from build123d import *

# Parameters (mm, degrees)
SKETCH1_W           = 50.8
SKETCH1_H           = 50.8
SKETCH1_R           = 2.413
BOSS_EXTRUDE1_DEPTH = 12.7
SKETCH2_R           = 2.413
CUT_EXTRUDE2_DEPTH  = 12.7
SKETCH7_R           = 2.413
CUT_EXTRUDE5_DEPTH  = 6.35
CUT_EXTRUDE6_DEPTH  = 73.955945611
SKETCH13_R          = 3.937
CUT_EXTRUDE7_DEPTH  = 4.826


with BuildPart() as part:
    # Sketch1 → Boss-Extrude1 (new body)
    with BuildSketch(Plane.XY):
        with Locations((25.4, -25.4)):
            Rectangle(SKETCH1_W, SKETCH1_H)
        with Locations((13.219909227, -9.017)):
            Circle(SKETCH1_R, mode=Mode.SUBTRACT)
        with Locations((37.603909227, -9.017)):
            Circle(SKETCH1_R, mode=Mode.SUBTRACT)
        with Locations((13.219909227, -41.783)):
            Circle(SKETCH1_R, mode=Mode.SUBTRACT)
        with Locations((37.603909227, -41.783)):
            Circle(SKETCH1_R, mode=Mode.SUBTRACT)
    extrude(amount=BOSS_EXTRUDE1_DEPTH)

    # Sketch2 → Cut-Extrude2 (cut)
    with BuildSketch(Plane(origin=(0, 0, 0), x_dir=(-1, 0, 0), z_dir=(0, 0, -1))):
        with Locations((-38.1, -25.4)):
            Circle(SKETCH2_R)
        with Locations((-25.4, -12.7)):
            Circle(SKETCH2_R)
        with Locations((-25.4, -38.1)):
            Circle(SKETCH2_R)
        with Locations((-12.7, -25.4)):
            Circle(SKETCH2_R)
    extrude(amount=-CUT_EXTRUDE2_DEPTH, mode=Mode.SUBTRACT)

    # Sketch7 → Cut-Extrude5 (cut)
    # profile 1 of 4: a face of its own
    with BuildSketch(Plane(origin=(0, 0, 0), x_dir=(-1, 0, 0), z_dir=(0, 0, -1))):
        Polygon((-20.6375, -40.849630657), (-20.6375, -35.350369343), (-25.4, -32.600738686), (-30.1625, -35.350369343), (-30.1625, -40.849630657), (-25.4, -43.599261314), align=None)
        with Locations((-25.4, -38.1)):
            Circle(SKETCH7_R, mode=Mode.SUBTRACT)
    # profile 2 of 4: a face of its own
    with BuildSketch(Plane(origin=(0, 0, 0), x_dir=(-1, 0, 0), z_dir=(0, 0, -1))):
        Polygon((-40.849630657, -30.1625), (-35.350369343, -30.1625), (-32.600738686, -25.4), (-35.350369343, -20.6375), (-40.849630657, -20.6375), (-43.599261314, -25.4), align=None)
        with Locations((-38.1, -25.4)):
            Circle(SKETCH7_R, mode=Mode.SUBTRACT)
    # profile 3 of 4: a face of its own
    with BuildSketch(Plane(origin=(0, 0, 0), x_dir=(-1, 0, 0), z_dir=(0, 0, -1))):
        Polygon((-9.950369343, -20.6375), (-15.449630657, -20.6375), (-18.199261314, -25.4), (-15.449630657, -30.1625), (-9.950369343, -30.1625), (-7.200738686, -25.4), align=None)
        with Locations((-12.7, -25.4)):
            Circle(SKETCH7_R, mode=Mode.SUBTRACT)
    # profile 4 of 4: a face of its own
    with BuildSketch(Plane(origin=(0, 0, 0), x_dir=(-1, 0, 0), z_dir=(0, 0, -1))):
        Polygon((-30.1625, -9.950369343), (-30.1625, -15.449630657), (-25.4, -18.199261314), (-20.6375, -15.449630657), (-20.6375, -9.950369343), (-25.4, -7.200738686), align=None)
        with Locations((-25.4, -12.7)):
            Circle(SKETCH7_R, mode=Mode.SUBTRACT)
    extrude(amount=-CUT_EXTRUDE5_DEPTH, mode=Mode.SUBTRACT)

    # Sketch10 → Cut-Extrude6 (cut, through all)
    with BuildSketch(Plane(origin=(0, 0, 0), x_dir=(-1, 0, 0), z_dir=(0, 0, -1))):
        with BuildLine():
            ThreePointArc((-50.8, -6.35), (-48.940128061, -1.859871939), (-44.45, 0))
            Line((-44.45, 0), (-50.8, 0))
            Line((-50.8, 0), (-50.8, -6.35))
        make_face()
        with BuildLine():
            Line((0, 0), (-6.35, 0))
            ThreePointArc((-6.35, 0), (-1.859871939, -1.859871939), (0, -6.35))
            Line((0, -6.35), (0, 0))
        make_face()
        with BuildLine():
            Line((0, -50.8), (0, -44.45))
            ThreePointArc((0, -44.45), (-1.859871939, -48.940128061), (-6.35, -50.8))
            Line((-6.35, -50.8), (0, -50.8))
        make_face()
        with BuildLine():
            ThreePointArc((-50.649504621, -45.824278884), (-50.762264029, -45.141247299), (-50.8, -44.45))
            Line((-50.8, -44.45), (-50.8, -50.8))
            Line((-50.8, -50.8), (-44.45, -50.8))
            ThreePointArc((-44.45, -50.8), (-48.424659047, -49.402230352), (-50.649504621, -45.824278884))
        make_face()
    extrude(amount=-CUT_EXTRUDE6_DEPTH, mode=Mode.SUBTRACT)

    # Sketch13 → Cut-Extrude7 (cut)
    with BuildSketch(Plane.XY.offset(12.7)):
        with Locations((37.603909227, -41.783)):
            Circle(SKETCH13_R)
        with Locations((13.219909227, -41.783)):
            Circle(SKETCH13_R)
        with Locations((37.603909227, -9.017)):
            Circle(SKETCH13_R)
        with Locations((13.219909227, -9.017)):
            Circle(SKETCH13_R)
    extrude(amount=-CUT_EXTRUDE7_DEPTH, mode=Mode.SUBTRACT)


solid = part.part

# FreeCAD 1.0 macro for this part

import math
import FreeCAD as App
import Part
import Sketcher
from FreeCAD import Vector
Q = App.Units.Quantity

doc = App.newDocument("Part")
body = doc.addObject("PartDesign::Body", "Body")

# Sketch on XY plane
sketch1 = body.newObject("Sketcher::SketchObject", "Sketch")
sketch1.AttachmentSupport = (doc.getObject("XY_Plane"), [""])
sketch1.MapMode = "FlatFace"
sketch1.addGeometry([
    Part.LineSegment(Vector(0, 0, 0), Vector(0, -50.8, 0)),  # 0
    Part.LineSegment(Vector(0, -50.8, 0), Vector(50.8, -50.8, 0)),  # 1
    Part.LineSegment(Vector(50.8, -50.8, 0), Vector(50.8, 0, 0)),  # 2
    Part.LineSegment(Vector(50.8, 0, 0), Vector(0, 0, 0)),  # 3
    Part.Circle(Vector(13.2, -41.8, 0), Vector(0, 0, 1), 2.4),  # 4
    Part.Circle(Vector(37.6, -41.8, 0), Vector(0, 0, 1), 2.4),  # 5
    Part.Circle(Vector(13.2, -9, 0), Vector(0, 0, 1), 2.4),  # 6
    Part.Circle(Vector(37.6, -9, 0), Vector(0, 0, 1), 2.4),  # 7
], False)
sketch1.addConstraint([
    Sketcher.Constraint("Coincident", 0, 2, 1, 1),
    Sketcher.Constraint("Coincident", 1, 2, 2, 1),
    Sketcher.Constraint("Coincident", 2, 2, 3, 1),
    Sketcher.Constraint("Coincident", 3, 2, 0, 1),
    Sketcher.Constraint("Vertical", 0),
    Sketcher.Constraint("Horizontal", 1),
    Sketcher.Constraint("Vertical", 2),
    Sketcher.Constraint("Horizontal", 3),
    Sketcher.Constraint("Coincident", 3, 2, -1, 1),
    Sketcher.Constraint("Equal", 4, 5),
    Sketcher.Constraint("Equal", 5, 6),
    Sketcher.Constraint("Equal", 6, 7),
    Sketcher.Constraint("Horizontal", 4, 3, 5, 3),
    Sketcher.Constraint("Horizontal", 6, 3, 7, 3),
    Sketcher.Constraint("Vertical", 4, 3, 6, 3),
    Sketcher.Constraint("Vertical", 5, 3, 7, 3),
    Sketcher.Constraint("Equal", 3, 0),
    Sketcher.Constraint("Diameter", 4, Q("0.19 in")),
    Sketcher.Constraint("DistanceX", 1, 1, 1, 2, Q("2 in")),
    Sketcher.Constraint("DistanceX", 4, 3, 5, 3, Q("0.96 in")),
    Sketcher.Constraint("DistanceY", 4, 3, 6, 3, Q("1.29 in")),
    Sketcher.Constraint("DistanceY", 4, 3, -1, 1, Q("1.645 in")),
    Sketcher.Constraint("DistanceX", -1, 1, 4, 3, 13.219909),
])
pad1 = body.newObject("PartDesign::Pad", "Pad")
pad1.Profile = sketch1
pad1.Length = Q("0.5 in")

# Sketch on XY plane
sketch2 = body.newObject("Sketcher::SketchObject", "Sketch001")
sketch2.AttachmentSupport = (doc.getObject("XY_Plane"), [""])
sketch2.MapMode = "FlatFace"
sketch2.addGeometry([
    Part.Circle(Vector(38.1, -25.4, 0), Vector(0, 0, 1), 2.4),
    Part.Circle(Vector(25.4, -12.7, 0), Vector(0, 0, 1), 2.4),
    Part.Circle(Vector(25.4, -38.1, 0), Vector(0, 0, 1), 2.4),
    Part.Circle(Vector(12.7, -25.4, 0), Vector(0, 0, 1), 2.4),
], False)
sketch2.addConstraint([
    Sketcher.Constraint("Equal", 0, 1),
    Sketcher.Constraint("Equal", 1, 2),
    Sketcher.Constraint("Equal", 2, 3),
    Sketcher.Constraint("Horizontal", 0, 3, 3, 3),
    Sketcher.Constraint("Vertical", 1, 3, 2, 3),
    Sketcher.Constraint("Diameter", 0, Q("0.19 in")),
    Sketcher.Constraint("DistanceY", 0, 3, -1, 1, Q("1 in")),
    Sketcher.Constraint("DistanceX", -1, 1, 1, 3, Q("1 in")),
    Sketcher.Constraint("DistanceY", 2, 3, 1, 3, Q("1 in")),
    Sketcher.Constraint("DistanceX", 3, 3, 0, 3, Q("1 in")),
    Sketcher.Constraint("DistanceX", -1, 1, 0, 3, Q("1.5 in")),
    Sketcher.Constraint("DistanceY", 1, 3, -1, 1, Q("0.5 in")),
])
pocket1 = body.newObject("PartDesign::Pocket", "Pocket")
pocket1.Profile = sketch2
pocket1.Length = Q("0.5 in")
pocket1.Reversed = True

# Sketch on XY plane
sketch3 = body.newObject("Sketcher::SketchObject", "Sketch002")
sketch3.AttachmentSupport = (doc.getObject("XY_Plane"), [""])
sketch3.MapMode = "FlatFace"
sketch3.addGeometry([
    Part.LineSegment(Vector(20.6, -40.8, 0), Vector(20.6, -35.4, 0)),  # 0
    Part.LineSegment(Vector(20.6, -35.4, 0), Vector(25.4, -32.6, 0)),  # 1
    Part.LineSegment(Vector(25.4, -32.6, 0), Vector(30.2, -35.4, 0)),  # 2
    Part.LineSegment(Vector(30.2, -35.4, 0), Vector(30.2, -40.8, 0)),  # 3
    Part.LineSegment(Vector(30.2, -40.8, 0), Vector(25.4, -43.6, 0)),  # 4
    Part.LineSegment(Vector(25.4, -43.6, 0), Vector(20.6, -40.8, 0)),  # 5
    Part.Circle(Vector(25.4, -38.1, 0), Vector(0, 0, 1), 2.4),  # 6
    Part.LineSegment(Vector(40.8, -30.2, 0), Vector(35.4, -30.2, 0)),  # 7
    Part.LineSegment(Vector(35.4, -30.2, 0), Vector(32.6, -25.4, 0)),  # 8
    Part.LineSegment(Vector(32.6, -25.4, 0), Vector(35.4, -20.6, 0)),  # 9
    Part.LineSegment(Vector(35.4, -20.6, 0), Vector(40.8, -20.6, 0)),  # 10
    Part.LineSegment(Vector(40.8, -20.6, 0), Vector(43.6, -25.4, 0)),  # 11
    Part.LineSegment(Vector(43.6, -25.4, 0), Vector(40.8, -30.2, 0)),  # 12
    Part.Circle(Vector(38.1, -25.4, 0), Vector(0, 0, 1), 2.4),  # 13
    Part.LineSegment(Vector(10, -20.6, 0), Vector(15.4, -20.6, 0)),  # 14
    Part.LineSegment(Vector(15.4, -20.6, 0), Vector(18.2, -25.4, 0)),  # 15
    Part.LineSegment(Vector(18.2, -25.4, 0), Vector(15.4, -30.2, 0)),  # 16
    Part.LineSegment(Vector(15.4, -30.2, 0), Vector(10, -30.2, 0)),  # 17
    Part.LineSegment(Vector(10, -30.2, 0), Vector(7.2, -25.4, 0)),  # 18
    Part.LineSegment(Vector(7.2, -25.4, 0), Vector(10, -20.6, 0)),  # 19
    Part.Circle(Vector(12.7, -25.4, 0), Vector(0, 0, 1), 2.4),  # 20
    Part.LineSegment(Vector(30.2, -10, 0), Vector(30.2, -15.4, 0)),  # 21
    Part.LineSegment(Vector(30.2, -15.4, 0), Vector(25.4, -18.2, 0)),  # 22
    Part.LineSegment(Vector(25.4, -18.2, 0), Vector(20.6, -15.4, 0)),  # 23
    Part.LineSegment(Vector(20.6, -15.4, 0), Vector(20.6, -10, 0)),  # 24
    Part.LineSegment(Vector(20.6, -10, 0), Vector(25.4, -7.2, 0)),  # 25
    Part.LineSegment(Vector(25.4, -7.2, 0), Vector(30.2, -10, 0)),  # 26
    Part.Circle(Vector(25.4, -12.7, 0), Vector(0, 0, 1), 2.4),  # 27
], False)
sketch3.addConstraint([
    Sketcher.Constraint("Coincident", 0, 2, 1, 1),
    Sketcher.Constraint("Coincident", 1, 2, 2, 1),
    Sketcher.Constraint("Coincident", 2, 2, 3, 1),
    Sketcher.Constraint("Coincident", 3, 2, 4, 1),
    Sketcher.Constraint("Coincident", 4, 2, 5, 1),
    Sketcher.Constraint("Coincident", 5, 2, 0, 1),
    Sketcher.Constraint("Coincident", 7, 2, 8, 1),
    Sketcher.Constraint("Coincident", 8, 2, 9, 1),
    Sketcher.Constraint("Coincident", 9, 2, 10, 1),
    Sketcher.Constraint("Coincident", 10, 2, 11, 1),
    Sketcher.Constraint("Coincident", 11, 2, 12, 1),
    Sketcher.Constraint("Coincident", 12, 2, 7, 1),
    Sketcher.Constraint("Coincident", 14, 2, 15, 1),
    Sketcher.Constraint("Coincident", 15, 2, 16, 1),
    Sketcher.Constraint("Coincident", 16, 2, 17, 1),
    Sketcher.Constraint("Coincident", 17, 2, 18, 1),
    Sketcher.Constraint("Coincident", 18, 2, 19, 1),
    Sketcher.Constraint("Coincident", 19, 2, 14, 1),
    Sketcher.Constraint("Coincident", 21, 2, 22, 1),
    Sketcher.Constraint("Coincident", 22, 2, 23, 1),
    Sketcher.Constraint("Coincident", 23, 2, 24, 1),
    Sketcher.Constraint("Coincident", 24, 2, 25, 1),
    Sketcher.Constraint("Coincident", 25, 2, 26, 1),
    Sketcher.Constraint("Coincident", 26, 2, 21, 1),
    Sketcher.Constraint("Vertical", 0),
    Sketcher.Constraint("Vertical", 3),
    Sketcher.Constraint("Horizontal", 7),
    Sketcher.Constraint("Horizontal", 10),
    Sketcher.Constraint("Horizontal", 14),
    Sketcher.Constraint("Horizontal", 17),
    Sketcher.Constraint("Vertical", 21),
    Sketcher.Constraint("Vertical", 24),
    Sketcher.Constraint("Equal", 6, 13),
    Sketcher.Constraint("Equal", 13, 20),
    Sketcher.Constraint("Equal", 20, 27),
    Sketcher.Constraint("Parallel", 1, 4),
    Sketcher.Constraint("Parallel", 2, 5),
    Sketcher.Constraint("Perpendicular", 4, 8),
    Sketcher.Constraint("Perpendicular", 5, 9),
    Sketcher.Constraint("Parallel", 8, 11),
    Sketcher.Constraint("Parallel", 9, 12),
    Sketcher.Constraint("Parallel", 11, 15),
    Sketcher.Constraint("Parallel", 12, 16),
    Sketcher.Constraint("Parallel", 15, 18),
    Sketcher.Constraint("Parallel", 16, 19),
    Sketcher.Constraint("Perpendicular", 18, 22),
    Sketcher.Constraint("Perpendicular", 19, 23),
    Sketcher.Constraint("Parallel", 22, 25),
    Sketcher.Constraint("Parallel", 23, 26),
    Sketcher.Constraint("Horizontal", 13, 3, 20, 3),
    Sketcher.Constraint("Horizontal", 0, 2, 2, 2),
    Sketcher.Constraint("Horizontal", 3, 2, 5, 2),
    Sketcher.Constraint("Horizontal", 20, 3, 8, 2),
    Sketcher.Constraint("Horizontal", 8, 2, 11, 2),
    Sketcher.Constraint("Horizontal", 10, 2, 14, 2),
    Sketcher.Constraint("Horizontal", 11, 2, 15, 2),
    Sketcher.Constraint("Horizontal", 12, 2, 16, 2),
    Sketcher.Constraint("Horizontal", 15, 2, 18, 2),
    Sketcher.Constraint("Horizontal", 21, 2, 23, 2),
    Sketcher.Constraint("Horizontal", 24, 2, 26, 2),
    Sketcher.Constraint("Vertical", 6, 3, 27, 3),
    Sketcher.Constraint("Vertical", 27, 3, 1, 2),
    Sketcher.Constraint("Vertical", 1, 2, 4, 2),
    Sketcher.Constraint("Vertical", 7, 2, 9, 2),
    Sketcher.Constraint("Vertical", 3, 2, 21, 2),
    Sketcher.Constraint("Vertical", 4, 2, 22, 2),
    Sketcher.Constraint("Equal", 10, 14),
    Sketcher.Constraint("Equal", 17, 0),
    Sketcher.Constraint("Equal", 3, 21),
    Sketcher.Constraint("Equal", 5, 8),
    Sketcher.Constraint("Diameter", 6, Q("0.19 in")),
    Sketcher.Constraint("DistanceX", -1, 1, 6, 3, Q("1 in")),
    Sketcher.Constraint("DistanceY", 13, 3, -1, 1, Q("1 in")),
    Sketcher.Constraint("Angle", 1, Q("30 deg")),
    Sketcher.Constraint("DistanceX", 20, 3, 13, 3, Q("1 in")),
    Sketcher.Constraint("DistanceY", 6, 3, 27, 3, Q("1 in")),
    Sketcher.Constraint("DistanceY", 6, 3, -1, 1, Q("1.5 in")),
    Sketcher.Constraint("DistanceX", -1, 1, 13, 3, Q("1.5 in")),
    Sketcher.Constraint("DistanceX", -1, 1, 0, 2, Q("0.8125 in")),
    Sketcher.Constraint("DistanceX", 7, 2, 7, 1, 5.499261),
    Sketcher.Constraint("DistanceY", 0, 2, -1, 1, 35.350369),
    Sketcher.Constraint("DistanceX", -1, 1, 7, 2, 35.350369),
    Sketcher.Constraint("DistanceX", -1, 1, 14, 2, 15.449631),
    Sketcher.Constraint("DistanceY", 21, 2, -1, 1, 15.449631),
])
pocket2 = body.newObject("PartDesign::Pocket", "Pocket001")
pocket2.Profile = sketch3
pocket2.Length = Q("0.25 in")
pocket2.Reversed = True

# Sketch on XY plane
sketch4 = body.newObject("Sketcher::SketchObject", "Sketch003")
sketch4.AttachmentSupport = (doc.getObject("XY_Plane"), [""])
sketch4.MapMode = "FlatFace"
sketch4.addGeometry([
    Part.ArcOfCircle(Part.Circle(Vector(44.5, -6.3, 0), Vector(0, 0, 1), 6.3), math.radians(0), math.radians(90)),  # 0
    Part.LineSegment(Vector(44.5, 0, 0), Vector(50.8, 0, 0)),  # 1
    Part.LineSegment(Vector(50.8, 0, 0), Vector(50.8, -6.3, 0)),  # 2
    Part.LineSegment(Vector(0, 0, 0), Vector(6.3, 0, 0)),  # 3
    Part.ArcOfCircle(Part.Circle(Vector(6.3, -6.3, 0), Vector(0, 0, 1), 6.3), math.radians(90), math.radians(180)),  # 4
    Part.LineSegment(Vector(0, -6.3, 0), Vector(0, 0, 0)),  # 5
    Part.LineSegment(Vector(0, -50.8, 0), Vector(0, -44.5, 0)),  # 6
    Part.ArcOfCircle(Part.Circle(Vector(6.3, -44.5, 0), Vector(0, 0, 1), 6.3), math.radians(180), math.radians(270)),  # 7
    Part.LineSegment(Vector(6.3, -50.8, 0), Vector(0, -50.8, 0)),  # 8
    Part.ArcOfCircle(Part.Circle(Vector(44.5, -44.5, 0), Vector(0, 0, 1), 6.3), math.radians(-12.5), math.radians(0)),  # 9
    Part.LineSegment(Vector(50.8, -44.5, 0), Vector(50.8, -50.8, 0)),  # 10
    Part.LineSegment(Vector(50.8, -50.8, 0), Vector(44.5, -50.8, 0)),  # 11
    Part.ArcOfCircle(Part.Circle(Vector(44.5, -44.5, 0), Vector(0, 0, 1), 6.3), math.radians(-90), math.radians(-12)),  # 12
], False)
sketch4.addConstraint([
    Sketcher.Constraint("Tangent", 0, 2, 1, 1),
    Sketcher.Constraint("Coincident", 1, 2, 2, 1),
    Sketcher.Constraint("Tangent", 2, 2, 0, 1),
    Sketcher.Constraint("Tangent", 3, 2, 4, 1),
    Sketcher.Constraint("Tangent", 4, 2, 5, 1),
    Sketcher.Constraint("Coincident", 5, 2, 3, 1),
    Sketcher.Constraint("Tangent", 6, 2, 7, 1),
    Sketcher.Constraint("Tangent", 7, 2, 8, 1),
    Sketcher.Constraint("Coincident", 8, 2, 6, 1),
    Sketcher.Constraint("Tangent", 9, 2, 10, 1),
    Sketcher.Constraint("Coincident", 10, 2, 11, 1),
    Sketcher.Constraint("Tangent", 11, 2, 12, 1),
    Sketcher.Constraint("Tangent", 12, 2, 9, 1),
    Sketcher.Constraint("Horizontal", 1),
    Sketcher.Constraint("Vertical", 2),
    Sketcher.Constraint("Horizontal", 3),
    Sketcher.Constraint("Vertical", 5),
    Sketcher.Constraint("Vertical", 6),
    Sketcher.Constraint("Horizontal", 8),
    Sketcher.Constraint("Vertical", 10),
    Sketcher.Constraint("Horizontal", 11),
    Sketcher.Constraint("Coincident", 5, 2, -1, 1),
    Sketcher.Constraint("Equal", 0, 4),
    Sketcher.Constraint("Equal", 4, 7),
    Sketcher.Constraint("Equal", 7, 9),
    Sketcher.Constraint("Equal", 9, 12),
    Sketcher.Constraint("PointOnObject", 0, 2, -1),
    Sketcher.Constraint("PointOnObject", 6, 2, -2),
    Sketcher.Constraint("Horizontal", 7, 3, 9, 3),
    Sketcher.Constraint("Vertical", 0, 3, 9, 3),
    Sketcher.Constraint("Radius", 0, Q("0.25 in")),
    Sketcher.Constraint("DistanceX", -1, 1, 1, 2, Q("2 in")),
    Sketcher.Constraint("DistanceY", 7, 2, -1, 1, Q("2 in")),
    Sketcher.Constraint("DistanceY", 12, 2, -1, 1, 45.824279),
])
pocket3 = body.newObject("PartDesign::Pocket", "Pocket002")
pocket3.Profile = sketch4
pocket3.Type = "ThroughAll"
pocket3.Reversed = True

# Sketch on XY plane
sketch5 = body.newObject("Sketcher::SketchObject", "Sketch004")
sketch5.AttachmentSupport = (doc.getObject("XY_Plane"), [""])
sketch5.MapMode = "FlatFace"
sketch5.AttachmentOffset = App.Placement(Vector(0, 0, 0.5 * 25.4), App.Rotation())
sketch5.addGeometry([
    Part.Circle(Vector(37.6, -41.8, 0), Vector(0, 0, 1), 3.9),
    Part.Circle(Vector(13.2, -41.8, 0), Vector(0, 0, 1), 3.9),
    Part.Circle(Vector(37.6, -9, 0), Vector(0, 0, 1), 3.9),
    Part.Circle(Vector(13.2, -9, 0), Vector(0, 0, 1), 3.9),
], False)
sketch5.addConstraint([
    Sketcher.Constraint("Equal", 0, 1),
    Sketcher.Constraint("Equal", 1, 2),
    Sketcher.Constraint("Equal", 2, 3),
    Sketcher.Constraint("Horizontal", 0, 3, 1, 3),
    Sketcher.Constraint("Horizontal", 2, 3, 3, 3),
    Sketcher.Constraint("Vertical", 0, 3, 2, 3),
    Sketcher.Constraint("Vertical", 1, 3, 3, 3),
    Sketcher.Constraint("Diameter", 0, Q("0.31 in")),
    Sketcher.Constraint("DistanceX", 1, 3, 0, 3, Q("0.96 in")),
    Sketcher.Constraint("DistanceY", 0, 3, 2, 3, Q("1.29 in")),
    Sketcher.Constraint("DistanceY", 0, 3, -1, 1, Q("1.645 in")),
    Sketcher.Constraint("DistanceX", -1, 1, 0, 3, 37.603909),
])
pocket4 = body.newObject("PartDesign::Pocket", "Pocket003")
pocket4.Profile = sketch5
pocket4.Length = Q("0.19 in")

doc.recompute()
